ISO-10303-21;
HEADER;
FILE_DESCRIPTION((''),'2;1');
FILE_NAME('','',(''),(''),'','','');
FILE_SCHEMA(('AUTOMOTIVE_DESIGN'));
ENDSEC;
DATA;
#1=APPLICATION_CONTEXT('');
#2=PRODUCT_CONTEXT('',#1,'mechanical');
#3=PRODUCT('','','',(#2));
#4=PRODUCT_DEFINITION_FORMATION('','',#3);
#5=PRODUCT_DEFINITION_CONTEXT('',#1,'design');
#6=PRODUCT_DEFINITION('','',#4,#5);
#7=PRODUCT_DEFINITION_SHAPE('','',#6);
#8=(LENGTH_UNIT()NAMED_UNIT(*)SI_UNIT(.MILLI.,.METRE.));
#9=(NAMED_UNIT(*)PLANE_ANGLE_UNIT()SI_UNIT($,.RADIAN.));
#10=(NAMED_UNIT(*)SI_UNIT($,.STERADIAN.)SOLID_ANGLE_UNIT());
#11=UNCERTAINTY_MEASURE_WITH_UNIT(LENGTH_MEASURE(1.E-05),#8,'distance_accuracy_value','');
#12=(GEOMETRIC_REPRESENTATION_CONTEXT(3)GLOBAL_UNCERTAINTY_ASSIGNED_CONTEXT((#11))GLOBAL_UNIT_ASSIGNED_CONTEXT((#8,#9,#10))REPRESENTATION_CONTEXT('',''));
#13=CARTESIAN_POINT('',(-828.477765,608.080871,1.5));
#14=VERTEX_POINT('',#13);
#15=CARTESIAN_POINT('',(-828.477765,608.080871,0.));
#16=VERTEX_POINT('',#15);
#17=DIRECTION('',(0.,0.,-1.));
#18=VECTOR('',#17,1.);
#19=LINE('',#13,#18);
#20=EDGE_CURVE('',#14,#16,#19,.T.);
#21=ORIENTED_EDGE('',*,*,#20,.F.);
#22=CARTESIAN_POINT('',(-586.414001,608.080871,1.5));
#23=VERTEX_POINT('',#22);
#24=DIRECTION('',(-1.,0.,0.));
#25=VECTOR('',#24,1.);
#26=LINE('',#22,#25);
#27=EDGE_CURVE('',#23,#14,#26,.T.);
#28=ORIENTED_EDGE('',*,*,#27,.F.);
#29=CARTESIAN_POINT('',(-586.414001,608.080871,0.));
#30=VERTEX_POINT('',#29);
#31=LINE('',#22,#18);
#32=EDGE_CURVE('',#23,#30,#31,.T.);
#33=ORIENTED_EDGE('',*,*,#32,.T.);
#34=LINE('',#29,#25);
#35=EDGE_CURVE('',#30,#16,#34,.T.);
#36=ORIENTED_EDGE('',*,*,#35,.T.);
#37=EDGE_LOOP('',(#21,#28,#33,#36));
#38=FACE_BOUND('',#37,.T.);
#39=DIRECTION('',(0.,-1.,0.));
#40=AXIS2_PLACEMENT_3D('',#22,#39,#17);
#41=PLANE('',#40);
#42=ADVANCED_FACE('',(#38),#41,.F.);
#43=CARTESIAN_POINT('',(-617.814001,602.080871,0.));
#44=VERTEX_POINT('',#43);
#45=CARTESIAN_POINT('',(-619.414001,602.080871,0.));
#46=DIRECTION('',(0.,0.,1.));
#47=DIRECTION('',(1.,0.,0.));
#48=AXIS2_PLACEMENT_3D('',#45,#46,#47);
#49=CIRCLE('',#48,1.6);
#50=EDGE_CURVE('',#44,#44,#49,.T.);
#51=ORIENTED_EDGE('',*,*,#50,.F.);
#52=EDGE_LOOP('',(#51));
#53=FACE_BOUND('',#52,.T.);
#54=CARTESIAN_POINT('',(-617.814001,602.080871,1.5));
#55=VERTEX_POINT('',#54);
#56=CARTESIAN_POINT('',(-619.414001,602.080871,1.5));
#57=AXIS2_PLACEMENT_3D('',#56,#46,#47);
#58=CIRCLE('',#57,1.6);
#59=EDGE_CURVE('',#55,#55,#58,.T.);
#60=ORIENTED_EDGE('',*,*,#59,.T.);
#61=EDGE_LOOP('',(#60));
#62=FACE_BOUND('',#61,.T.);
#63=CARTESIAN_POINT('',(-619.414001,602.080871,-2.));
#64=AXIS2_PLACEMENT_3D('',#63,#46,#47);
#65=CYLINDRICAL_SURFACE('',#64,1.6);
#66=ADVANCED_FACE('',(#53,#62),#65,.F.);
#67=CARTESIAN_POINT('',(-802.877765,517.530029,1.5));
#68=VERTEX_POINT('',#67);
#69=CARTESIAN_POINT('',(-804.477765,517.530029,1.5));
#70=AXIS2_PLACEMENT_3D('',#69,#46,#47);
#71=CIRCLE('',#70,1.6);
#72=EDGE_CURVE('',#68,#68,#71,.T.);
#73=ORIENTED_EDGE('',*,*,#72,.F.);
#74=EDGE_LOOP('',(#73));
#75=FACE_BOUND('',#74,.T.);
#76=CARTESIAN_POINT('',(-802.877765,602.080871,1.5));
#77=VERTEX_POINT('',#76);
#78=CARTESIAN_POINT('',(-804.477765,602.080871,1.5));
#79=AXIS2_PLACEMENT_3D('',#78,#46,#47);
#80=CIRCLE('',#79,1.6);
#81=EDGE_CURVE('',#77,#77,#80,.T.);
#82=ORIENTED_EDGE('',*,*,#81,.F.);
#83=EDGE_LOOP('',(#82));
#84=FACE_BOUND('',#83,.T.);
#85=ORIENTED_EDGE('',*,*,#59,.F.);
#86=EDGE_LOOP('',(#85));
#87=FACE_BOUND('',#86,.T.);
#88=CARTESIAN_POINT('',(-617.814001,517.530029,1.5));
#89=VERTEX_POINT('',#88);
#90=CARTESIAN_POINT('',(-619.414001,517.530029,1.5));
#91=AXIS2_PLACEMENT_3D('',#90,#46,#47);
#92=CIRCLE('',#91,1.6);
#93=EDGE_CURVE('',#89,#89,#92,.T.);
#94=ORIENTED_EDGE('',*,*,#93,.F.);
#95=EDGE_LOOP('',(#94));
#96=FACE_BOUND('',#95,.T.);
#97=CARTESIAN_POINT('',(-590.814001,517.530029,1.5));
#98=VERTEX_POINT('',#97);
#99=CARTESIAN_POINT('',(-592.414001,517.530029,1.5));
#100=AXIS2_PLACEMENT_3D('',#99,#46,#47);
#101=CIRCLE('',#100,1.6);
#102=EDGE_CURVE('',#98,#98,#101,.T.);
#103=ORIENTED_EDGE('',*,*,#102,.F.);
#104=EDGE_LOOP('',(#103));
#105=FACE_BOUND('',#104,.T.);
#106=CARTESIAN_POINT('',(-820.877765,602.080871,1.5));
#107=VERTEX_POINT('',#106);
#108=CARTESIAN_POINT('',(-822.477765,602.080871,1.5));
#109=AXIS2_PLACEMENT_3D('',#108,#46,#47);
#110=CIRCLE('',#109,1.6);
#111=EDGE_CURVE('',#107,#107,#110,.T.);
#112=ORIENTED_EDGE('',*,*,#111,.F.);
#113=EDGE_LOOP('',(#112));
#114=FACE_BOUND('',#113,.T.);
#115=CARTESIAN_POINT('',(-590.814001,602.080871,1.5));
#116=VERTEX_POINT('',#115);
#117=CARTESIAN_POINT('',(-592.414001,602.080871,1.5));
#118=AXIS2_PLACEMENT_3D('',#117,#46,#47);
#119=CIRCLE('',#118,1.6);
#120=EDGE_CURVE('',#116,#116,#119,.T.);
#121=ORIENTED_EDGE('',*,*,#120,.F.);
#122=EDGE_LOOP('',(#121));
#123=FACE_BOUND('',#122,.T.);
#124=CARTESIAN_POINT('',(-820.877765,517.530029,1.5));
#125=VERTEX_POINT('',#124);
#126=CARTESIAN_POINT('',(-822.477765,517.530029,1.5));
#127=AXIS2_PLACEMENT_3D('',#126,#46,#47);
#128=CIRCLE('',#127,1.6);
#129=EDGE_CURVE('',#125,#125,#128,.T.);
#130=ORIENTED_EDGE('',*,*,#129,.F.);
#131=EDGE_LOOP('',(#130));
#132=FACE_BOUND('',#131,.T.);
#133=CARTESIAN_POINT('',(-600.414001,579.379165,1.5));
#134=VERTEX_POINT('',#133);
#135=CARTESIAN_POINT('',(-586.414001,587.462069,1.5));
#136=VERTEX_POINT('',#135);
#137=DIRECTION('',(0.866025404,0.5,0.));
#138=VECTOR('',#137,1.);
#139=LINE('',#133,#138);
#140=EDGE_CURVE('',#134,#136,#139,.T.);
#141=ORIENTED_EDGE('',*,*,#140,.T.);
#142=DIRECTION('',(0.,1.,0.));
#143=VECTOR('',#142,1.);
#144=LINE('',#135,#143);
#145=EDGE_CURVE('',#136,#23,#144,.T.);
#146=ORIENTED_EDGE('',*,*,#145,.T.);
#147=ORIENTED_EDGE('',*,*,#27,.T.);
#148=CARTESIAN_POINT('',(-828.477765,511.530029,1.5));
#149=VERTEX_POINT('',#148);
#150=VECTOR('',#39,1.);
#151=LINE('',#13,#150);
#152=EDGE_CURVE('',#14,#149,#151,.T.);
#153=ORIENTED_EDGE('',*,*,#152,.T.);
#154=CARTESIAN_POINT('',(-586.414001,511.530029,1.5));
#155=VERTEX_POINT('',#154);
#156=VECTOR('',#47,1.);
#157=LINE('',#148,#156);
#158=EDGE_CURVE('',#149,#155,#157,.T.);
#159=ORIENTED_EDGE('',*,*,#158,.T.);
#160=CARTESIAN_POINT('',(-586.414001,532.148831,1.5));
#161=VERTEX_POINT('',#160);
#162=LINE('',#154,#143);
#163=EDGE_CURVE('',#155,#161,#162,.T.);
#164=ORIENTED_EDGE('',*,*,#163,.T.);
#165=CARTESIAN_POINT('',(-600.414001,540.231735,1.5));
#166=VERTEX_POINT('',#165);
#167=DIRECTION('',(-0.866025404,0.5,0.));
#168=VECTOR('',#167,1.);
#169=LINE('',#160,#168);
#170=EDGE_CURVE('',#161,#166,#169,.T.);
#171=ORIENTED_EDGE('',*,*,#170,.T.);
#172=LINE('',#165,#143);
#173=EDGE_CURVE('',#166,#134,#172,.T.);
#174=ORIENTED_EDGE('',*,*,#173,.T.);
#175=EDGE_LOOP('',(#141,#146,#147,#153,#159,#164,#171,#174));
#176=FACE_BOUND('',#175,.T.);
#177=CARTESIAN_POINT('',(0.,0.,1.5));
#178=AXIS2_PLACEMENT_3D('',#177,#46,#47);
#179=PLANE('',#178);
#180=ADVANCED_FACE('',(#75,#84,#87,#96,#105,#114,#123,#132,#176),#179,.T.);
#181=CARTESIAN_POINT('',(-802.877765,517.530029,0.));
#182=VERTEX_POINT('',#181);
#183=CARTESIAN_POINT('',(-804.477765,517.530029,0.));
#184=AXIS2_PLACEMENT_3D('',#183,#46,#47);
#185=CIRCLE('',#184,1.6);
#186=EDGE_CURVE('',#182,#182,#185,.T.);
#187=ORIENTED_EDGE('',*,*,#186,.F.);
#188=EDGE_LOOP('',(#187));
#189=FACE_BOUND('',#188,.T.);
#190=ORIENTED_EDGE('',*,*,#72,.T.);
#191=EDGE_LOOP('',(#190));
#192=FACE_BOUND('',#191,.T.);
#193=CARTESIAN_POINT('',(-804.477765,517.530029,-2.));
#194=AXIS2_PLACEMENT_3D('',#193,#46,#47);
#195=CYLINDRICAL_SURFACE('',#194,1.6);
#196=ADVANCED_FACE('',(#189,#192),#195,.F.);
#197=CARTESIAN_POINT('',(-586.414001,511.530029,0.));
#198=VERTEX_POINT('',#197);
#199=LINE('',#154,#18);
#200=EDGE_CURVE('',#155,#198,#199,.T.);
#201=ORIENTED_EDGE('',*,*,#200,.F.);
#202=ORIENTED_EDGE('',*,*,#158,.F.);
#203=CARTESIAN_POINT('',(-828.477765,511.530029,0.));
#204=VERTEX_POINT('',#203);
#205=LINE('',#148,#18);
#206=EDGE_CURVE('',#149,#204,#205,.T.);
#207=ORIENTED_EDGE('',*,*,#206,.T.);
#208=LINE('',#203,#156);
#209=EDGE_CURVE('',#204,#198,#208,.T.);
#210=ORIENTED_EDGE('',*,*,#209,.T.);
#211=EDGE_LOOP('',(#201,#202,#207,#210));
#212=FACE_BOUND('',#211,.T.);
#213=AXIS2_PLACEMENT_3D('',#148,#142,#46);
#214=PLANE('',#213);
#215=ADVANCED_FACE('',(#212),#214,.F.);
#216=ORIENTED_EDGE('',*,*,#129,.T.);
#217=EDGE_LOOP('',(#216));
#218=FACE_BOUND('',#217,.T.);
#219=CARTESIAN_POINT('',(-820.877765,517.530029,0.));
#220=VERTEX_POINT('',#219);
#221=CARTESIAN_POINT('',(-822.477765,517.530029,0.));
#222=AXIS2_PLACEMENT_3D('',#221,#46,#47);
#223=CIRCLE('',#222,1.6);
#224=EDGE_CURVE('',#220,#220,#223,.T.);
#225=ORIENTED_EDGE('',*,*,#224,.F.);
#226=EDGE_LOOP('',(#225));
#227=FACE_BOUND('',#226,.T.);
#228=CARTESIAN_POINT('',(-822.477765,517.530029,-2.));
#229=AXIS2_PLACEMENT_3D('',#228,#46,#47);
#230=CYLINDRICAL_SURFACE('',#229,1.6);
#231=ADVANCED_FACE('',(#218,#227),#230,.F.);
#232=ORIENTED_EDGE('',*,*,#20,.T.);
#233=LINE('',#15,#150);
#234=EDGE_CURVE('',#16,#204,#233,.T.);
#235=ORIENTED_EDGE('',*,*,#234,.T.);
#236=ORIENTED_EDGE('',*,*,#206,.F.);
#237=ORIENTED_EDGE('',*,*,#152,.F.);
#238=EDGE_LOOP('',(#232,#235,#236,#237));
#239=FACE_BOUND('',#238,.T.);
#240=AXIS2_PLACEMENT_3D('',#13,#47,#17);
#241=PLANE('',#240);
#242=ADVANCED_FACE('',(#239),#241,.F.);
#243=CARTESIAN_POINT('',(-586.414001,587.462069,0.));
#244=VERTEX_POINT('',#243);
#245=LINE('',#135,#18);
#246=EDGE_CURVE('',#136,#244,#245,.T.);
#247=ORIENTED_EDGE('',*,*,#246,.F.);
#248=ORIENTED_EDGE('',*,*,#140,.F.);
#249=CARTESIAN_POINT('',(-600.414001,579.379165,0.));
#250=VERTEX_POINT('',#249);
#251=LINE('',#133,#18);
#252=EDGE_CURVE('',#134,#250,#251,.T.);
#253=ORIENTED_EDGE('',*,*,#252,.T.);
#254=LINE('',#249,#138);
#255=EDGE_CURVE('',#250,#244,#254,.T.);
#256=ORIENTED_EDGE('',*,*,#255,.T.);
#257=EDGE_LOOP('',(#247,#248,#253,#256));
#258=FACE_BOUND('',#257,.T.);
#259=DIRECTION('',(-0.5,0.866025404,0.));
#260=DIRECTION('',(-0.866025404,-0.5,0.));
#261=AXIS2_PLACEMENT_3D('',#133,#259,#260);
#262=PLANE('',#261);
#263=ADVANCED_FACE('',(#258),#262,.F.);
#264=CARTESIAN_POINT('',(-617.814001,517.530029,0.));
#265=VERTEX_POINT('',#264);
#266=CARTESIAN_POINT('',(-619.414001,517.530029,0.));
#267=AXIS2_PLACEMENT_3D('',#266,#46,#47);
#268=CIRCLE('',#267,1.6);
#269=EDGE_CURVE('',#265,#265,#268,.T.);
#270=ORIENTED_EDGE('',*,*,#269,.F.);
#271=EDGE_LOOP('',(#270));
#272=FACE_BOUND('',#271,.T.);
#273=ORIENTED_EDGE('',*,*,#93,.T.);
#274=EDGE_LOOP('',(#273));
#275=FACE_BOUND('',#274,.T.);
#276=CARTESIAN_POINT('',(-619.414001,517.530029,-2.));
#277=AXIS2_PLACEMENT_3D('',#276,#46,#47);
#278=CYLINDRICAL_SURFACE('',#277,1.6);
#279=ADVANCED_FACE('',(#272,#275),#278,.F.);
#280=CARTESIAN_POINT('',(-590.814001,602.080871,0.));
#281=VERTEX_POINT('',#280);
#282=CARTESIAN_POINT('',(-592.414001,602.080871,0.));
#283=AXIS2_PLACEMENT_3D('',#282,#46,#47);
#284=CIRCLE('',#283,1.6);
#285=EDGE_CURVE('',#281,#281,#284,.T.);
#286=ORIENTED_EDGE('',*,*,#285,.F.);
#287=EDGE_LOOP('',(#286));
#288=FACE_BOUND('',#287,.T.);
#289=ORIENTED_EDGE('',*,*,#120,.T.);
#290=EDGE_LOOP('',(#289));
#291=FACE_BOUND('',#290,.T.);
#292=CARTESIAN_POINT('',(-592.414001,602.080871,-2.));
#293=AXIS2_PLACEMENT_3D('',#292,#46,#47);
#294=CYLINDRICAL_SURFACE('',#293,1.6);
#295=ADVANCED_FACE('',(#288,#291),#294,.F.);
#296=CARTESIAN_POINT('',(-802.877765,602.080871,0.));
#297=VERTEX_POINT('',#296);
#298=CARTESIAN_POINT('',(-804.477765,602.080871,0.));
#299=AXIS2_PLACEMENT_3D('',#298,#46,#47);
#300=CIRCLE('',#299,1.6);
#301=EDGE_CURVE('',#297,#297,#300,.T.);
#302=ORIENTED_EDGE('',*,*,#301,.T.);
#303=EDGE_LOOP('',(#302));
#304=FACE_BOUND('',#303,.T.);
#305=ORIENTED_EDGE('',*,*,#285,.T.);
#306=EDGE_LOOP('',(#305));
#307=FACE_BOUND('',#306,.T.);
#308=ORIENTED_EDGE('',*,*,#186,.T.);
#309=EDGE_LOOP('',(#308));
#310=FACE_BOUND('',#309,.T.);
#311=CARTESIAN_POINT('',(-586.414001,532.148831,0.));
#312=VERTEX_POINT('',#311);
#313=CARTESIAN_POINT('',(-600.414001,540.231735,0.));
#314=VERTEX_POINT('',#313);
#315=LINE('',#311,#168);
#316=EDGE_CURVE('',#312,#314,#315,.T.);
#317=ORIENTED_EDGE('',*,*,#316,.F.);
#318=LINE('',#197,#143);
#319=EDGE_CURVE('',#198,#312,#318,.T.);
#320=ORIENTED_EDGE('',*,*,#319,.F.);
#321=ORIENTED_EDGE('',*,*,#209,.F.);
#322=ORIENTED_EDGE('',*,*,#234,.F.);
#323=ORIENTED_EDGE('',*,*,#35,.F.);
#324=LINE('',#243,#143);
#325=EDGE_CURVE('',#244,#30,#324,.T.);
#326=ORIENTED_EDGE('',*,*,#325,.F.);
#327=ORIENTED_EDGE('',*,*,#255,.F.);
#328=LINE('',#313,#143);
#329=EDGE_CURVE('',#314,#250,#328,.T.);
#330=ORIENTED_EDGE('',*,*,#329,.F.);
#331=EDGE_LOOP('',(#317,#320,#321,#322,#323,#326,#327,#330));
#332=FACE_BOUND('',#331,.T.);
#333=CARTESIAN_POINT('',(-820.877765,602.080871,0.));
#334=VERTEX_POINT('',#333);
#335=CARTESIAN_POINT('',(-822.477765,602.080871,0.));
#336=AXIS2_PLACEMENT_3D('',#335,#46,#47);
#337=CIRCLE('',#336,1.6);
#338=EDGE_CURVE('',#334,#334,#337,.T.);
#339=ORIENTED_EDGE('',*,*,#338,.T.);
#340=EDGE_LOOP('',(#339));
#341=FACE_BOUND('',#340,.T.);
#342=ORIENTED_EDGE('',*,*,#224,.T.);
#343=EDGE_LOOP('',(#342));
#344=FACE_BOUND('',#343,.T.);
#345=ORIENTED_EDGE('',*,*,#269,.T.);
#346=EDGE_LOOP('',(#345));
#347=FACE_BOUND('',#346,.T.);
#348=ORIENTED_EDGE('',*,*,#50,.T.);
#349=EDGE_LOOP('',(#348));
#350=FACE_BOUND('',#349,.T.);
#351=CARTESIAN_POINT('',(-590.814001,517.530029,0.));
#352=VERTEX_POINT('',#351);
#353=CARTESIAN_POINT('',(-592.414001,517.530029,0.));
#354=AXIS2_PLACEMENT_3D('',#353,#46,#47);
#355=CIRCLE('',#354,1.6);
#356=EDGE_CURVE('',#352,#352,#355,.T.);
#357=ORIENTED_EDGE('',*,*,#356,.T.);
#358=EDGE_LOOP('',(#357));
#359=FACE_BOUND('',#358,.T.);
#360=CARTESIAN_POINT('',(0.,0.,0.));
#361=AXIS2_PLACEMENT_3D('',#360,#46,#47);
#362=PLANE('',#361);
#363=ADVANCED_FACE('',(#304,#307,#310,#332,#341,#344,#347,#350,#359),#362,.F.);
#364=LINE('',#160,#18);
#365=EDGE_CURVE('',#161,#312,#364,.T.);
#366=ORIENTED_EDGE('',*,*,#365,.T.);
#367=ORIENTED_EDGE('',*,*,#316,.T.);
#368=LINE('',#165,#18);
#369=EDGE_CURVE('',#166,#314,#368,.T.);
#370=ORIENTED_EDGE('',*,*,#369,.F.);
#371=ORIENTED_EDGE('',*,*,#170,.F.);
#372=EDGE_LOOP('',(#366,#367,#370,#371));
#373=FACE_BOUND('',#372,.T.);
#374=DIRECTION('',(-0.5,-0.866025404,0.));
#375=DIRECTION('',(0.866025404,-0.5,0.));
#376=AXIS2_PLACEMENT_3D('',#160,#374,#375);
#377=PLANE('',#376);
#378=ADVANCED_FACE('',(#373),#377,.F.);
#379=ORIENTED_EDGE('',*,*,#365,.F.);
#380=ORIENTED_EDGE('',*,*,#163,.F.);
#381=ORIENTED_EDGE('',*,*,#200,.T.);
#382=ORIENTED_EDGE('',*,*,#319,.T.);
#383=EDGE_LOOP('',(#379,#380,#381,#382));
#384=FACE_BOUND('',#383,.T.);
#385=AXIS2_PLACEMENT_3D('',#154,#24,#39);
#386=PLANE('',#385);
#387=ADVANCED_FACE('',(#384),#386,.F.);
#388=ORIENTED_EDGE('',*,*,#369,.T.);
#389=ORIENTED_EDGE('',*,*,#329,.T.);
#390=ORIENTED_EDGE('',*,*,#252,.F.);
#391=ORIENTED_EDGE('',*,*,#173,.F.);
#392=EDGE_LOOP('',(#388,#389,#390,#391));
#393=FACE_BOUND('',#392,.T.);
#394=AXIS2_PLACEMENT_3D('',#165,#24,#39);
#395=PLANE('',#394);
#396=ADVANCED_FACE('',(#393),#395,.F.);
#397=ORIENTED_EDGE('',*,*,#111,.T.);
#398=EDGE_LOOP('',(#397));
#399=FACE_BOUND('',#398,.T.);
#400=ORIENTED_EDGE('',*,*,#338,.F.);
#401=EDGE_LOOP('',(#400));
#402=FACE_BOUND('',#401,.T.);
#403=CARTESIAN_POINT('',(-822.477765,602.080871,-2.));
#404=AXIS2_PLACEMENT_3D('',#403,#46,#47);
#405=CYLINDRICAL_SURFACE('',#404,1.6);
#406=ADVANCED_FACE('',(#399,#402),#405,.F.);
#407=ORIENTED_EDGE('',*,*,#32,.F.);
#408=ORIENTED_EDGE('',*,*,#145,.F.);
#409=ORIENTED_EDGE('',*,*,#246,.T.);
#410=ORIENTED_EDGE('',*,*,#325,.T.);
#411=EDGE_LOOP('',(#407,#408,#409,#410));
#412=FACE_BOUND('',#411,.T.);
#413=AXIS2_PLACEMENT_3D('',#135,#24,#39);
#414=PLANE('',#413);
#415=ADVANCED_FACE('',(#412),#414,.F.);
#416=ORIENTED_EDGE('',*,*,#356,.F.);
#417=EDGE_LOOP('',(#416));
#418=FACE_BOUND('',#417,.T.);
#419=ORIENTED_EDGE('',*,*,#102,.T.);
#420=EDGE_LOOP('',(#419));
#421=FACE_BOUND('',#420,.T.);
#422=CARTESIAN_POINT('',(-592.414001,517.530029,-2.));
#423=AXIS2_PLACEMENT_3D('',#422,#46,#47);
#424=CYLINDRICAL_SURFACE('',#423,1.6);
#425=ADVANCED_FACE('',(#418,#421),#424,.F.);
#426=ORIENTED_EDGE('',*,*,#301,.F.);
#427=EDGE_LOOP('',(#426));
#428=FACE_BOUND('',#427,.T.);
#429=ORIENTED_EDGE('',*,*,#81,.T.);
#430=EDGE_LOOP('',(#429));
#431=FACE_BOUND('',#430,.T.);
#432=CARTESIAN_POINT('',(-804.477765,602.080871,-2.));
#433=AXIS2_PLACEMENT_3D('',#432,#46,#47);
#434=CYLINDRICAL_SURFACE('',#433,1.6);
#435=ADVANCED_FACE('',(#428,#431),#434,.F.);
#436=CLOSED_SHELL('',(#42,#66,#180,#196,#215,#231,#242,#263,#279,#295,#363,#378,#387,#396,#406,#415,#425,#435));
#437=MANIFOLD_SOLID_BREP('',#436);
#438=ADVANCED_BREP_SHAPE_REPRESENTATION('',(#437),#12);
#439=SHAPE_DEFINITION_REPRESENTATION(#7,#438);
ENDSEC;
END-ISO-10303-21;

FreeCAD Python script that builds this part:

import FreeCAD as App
import Part
import Sketcher

V = App.Vector
Q = App.Units.Quantity


def add_polygon(sketch, points):
    """Adds a closed chain of lines whose ends are joined by coincident constraints."""
    first, n = sketch.GeometryCount, len(points)
    for a, b in zip(points, points[1:] + points[:1]):
        sketch.addGeometry(Part.LineSegment(App.Vector(*a, 0), App.Vector(*b, 0)), False)
    for i in range(n):
        sketch.addConstraint(Sketcher.Constraint("Coincident", first + i, 2, first + (i + 1) % n, 1))

doc = App.newDocument("Part")
body = doc.addObject("PartDesign::Body", "Body")

# Sketch on XY plane
sketch1 = doc.addObject("Sketcher::SketchObject", "Sketch")
body.addObject(sketch1)
sketch1.AttachmentSupport = (doc.XY_Plane, [""])
sketch1.MapMode = "FlatFace"
add_polygon(sketch1, [(-586, 608), (-828, 608), (-828, 512), (-586, 512), (-586, 532), (-600, 540), (-600, 579), (-586, 587)])  # lines 0-7
sketch1.addConstraint([
    Sketcher.Constraint("Horizontal", 0),
    Sketcher.Constraint("Vertical", 1),
    Sketcher.Constraint("Horizontal", 2),
    Sketcher.Constraint("Vertical", 3),
    Sketcher.Constraint("Vertical", 5),
    Sketcher.Constraint("Vertical", 7),
    Sketcher.Constraint("Vertical", 3, 2, 6, 2),
    Sketcher.Constraint("Equal", 3, 7),
    Sketcher.Constraint("Equal", 4, 6),
    Sketcher.Constraint("Angle", 4, Q("150 deg")),
    Sketcher.Constraint("DistanceX", 4, 2, 3, 2, Q("14 mm")),
    Sketcher.Constraint("DistanceX", 2, 2, -1, 1, Q("586.414001 mm")),
    Sketcher.Constraint("DistanceY", 1, 2, 1, 1, Q("96.550842 mm")),
    Sketcher.Constraint("DistanceY", 5, 1, 5, 2, Q("39.14743 mm")),
    Sketcher.Constraint("DistanceX", 0, 2, 0, 1, Q("242.063763 mm")),
    Sketcher.Constraint("DistanceY", -1, 1, 0, 2, Q("608.080871 mm")),
])
pad1 = doc.addObject("PartDesign::Pad", "Pad")
body.addObject(pad1)
pad1.Profile = sketch1
pad1.Length = 1.5

# Sketch on XY plane
sketch2 = doc.addObject("Sketcher::SketchObject", "Sketch001")
body.addObject(sketch2)
sketch2.AttachmentSupport = (doc.XY_Plane, [""])
sketch2.MapMode = "FlatFace"
sketch2.AttachmentOffset = App.Placement(V(0, 0, 1.5), App.Rotation())
sketch2.addGeometry([
    Part.Circle(V(-822.5, 602.1, 0), V(0, 0, 1), 1.6),  # 0
    Part.Circle(V(-804.5, 602.1, 0), V(0, 0, 1), 1.6),  # 1
    Part.Circle(V(-822.5, 517.5, 0), V(0, 0, 1), 1.6),  # 2
    Part.Circle(V(-804.5, 517.5, 0), V(0, 0, 1), 1.6),  # 3
    Part.Circle(V(-619.4, 602.1, 0), V(0, 0, 1), 1.6),  # 4
    Part.Circle(V(-592.4, 602.1, 0), V(0, 0, 1), 1.6),  # 5
    Part.Circle(V(-619.4, 517.5, 0), V(0, 0, 1), 1.6),  # 6
    Part.Circle(V(-592.4, 517.5, 0), V(0, 0, 1), 1.6),  # 7
], False)
sketch2.addConstraint([
    Sketcher.Constraint("Equal", 0, 1),
    Sketcher.Constraint("Equal", 1, 2),
    Sketcher.Constraint("Equal", 2, 3),
    Sketcher.Constraint("Equal", 3, 4),
    Sketcher.Constraint("Equal", 4, 5),
    Sketcher.Constraint("Equal", 5, 6),
    Sketcher.Constraint("Equal", 6, 7),
    Sketcher.Constraint("Horizontal", 0, 3, 1, 3),
    Sketcher.Constraint("Horizontal", 2, 3, 3, 3),
    Sketcher.Constraint("Horizontal", 1, 3, 4, 3),
    Sketcher.Constraint("Horizontal", 4, 3, 5, 3),
    Sketcher.Constraint("Horizontal", 3, 3, 6, 3),
    Sketcher.Constraint("Horizontal", 6, 3, 7, 3),
    Sketcher.Constraint("Vertical", 0, 3, 2, 3),
    Sketcher.Constraint("Vertical", 1, 3, 3, 3),
    Sketcher.Constraint("Vertical", 4, 3, 6, 3),
    Sketcher.Constraint("Vertical", 5, 3, 7, 3),
    Sketcher.Constraint("Diameter", 0, Q("3.2 mm")),
    Sketcher.Constraint("DistanceX", 0, 3, 1, 3, Q("18 mm")),
    Sketcher.Constraint("DistanceX", 4, 3, 5, 3, Q("27 mm")),
    Sketcher.Constraint("DistanceX", 4, 3, -1, 1, Q("619.414001 mm")),
    Sketcher.Constraint("DistanceY", -1, 1, 0, 3, Q("602.080871 mm")),
    Sketcher.Constraint("DistanceY", -1, 1, 2, 3, Q("517.530029 mm")),
    Sketcher.Constraint("DistanceX", 0, 3, -1, 1, Q("822.477765 mm")),
])
pocket1 = doc.addObject("PartDesign::Pocket", "Pocket")
body.addObject(pocket1)
pocket1.Profile = sketch2
pocket1.Length = 3.5

doc.recompute()
